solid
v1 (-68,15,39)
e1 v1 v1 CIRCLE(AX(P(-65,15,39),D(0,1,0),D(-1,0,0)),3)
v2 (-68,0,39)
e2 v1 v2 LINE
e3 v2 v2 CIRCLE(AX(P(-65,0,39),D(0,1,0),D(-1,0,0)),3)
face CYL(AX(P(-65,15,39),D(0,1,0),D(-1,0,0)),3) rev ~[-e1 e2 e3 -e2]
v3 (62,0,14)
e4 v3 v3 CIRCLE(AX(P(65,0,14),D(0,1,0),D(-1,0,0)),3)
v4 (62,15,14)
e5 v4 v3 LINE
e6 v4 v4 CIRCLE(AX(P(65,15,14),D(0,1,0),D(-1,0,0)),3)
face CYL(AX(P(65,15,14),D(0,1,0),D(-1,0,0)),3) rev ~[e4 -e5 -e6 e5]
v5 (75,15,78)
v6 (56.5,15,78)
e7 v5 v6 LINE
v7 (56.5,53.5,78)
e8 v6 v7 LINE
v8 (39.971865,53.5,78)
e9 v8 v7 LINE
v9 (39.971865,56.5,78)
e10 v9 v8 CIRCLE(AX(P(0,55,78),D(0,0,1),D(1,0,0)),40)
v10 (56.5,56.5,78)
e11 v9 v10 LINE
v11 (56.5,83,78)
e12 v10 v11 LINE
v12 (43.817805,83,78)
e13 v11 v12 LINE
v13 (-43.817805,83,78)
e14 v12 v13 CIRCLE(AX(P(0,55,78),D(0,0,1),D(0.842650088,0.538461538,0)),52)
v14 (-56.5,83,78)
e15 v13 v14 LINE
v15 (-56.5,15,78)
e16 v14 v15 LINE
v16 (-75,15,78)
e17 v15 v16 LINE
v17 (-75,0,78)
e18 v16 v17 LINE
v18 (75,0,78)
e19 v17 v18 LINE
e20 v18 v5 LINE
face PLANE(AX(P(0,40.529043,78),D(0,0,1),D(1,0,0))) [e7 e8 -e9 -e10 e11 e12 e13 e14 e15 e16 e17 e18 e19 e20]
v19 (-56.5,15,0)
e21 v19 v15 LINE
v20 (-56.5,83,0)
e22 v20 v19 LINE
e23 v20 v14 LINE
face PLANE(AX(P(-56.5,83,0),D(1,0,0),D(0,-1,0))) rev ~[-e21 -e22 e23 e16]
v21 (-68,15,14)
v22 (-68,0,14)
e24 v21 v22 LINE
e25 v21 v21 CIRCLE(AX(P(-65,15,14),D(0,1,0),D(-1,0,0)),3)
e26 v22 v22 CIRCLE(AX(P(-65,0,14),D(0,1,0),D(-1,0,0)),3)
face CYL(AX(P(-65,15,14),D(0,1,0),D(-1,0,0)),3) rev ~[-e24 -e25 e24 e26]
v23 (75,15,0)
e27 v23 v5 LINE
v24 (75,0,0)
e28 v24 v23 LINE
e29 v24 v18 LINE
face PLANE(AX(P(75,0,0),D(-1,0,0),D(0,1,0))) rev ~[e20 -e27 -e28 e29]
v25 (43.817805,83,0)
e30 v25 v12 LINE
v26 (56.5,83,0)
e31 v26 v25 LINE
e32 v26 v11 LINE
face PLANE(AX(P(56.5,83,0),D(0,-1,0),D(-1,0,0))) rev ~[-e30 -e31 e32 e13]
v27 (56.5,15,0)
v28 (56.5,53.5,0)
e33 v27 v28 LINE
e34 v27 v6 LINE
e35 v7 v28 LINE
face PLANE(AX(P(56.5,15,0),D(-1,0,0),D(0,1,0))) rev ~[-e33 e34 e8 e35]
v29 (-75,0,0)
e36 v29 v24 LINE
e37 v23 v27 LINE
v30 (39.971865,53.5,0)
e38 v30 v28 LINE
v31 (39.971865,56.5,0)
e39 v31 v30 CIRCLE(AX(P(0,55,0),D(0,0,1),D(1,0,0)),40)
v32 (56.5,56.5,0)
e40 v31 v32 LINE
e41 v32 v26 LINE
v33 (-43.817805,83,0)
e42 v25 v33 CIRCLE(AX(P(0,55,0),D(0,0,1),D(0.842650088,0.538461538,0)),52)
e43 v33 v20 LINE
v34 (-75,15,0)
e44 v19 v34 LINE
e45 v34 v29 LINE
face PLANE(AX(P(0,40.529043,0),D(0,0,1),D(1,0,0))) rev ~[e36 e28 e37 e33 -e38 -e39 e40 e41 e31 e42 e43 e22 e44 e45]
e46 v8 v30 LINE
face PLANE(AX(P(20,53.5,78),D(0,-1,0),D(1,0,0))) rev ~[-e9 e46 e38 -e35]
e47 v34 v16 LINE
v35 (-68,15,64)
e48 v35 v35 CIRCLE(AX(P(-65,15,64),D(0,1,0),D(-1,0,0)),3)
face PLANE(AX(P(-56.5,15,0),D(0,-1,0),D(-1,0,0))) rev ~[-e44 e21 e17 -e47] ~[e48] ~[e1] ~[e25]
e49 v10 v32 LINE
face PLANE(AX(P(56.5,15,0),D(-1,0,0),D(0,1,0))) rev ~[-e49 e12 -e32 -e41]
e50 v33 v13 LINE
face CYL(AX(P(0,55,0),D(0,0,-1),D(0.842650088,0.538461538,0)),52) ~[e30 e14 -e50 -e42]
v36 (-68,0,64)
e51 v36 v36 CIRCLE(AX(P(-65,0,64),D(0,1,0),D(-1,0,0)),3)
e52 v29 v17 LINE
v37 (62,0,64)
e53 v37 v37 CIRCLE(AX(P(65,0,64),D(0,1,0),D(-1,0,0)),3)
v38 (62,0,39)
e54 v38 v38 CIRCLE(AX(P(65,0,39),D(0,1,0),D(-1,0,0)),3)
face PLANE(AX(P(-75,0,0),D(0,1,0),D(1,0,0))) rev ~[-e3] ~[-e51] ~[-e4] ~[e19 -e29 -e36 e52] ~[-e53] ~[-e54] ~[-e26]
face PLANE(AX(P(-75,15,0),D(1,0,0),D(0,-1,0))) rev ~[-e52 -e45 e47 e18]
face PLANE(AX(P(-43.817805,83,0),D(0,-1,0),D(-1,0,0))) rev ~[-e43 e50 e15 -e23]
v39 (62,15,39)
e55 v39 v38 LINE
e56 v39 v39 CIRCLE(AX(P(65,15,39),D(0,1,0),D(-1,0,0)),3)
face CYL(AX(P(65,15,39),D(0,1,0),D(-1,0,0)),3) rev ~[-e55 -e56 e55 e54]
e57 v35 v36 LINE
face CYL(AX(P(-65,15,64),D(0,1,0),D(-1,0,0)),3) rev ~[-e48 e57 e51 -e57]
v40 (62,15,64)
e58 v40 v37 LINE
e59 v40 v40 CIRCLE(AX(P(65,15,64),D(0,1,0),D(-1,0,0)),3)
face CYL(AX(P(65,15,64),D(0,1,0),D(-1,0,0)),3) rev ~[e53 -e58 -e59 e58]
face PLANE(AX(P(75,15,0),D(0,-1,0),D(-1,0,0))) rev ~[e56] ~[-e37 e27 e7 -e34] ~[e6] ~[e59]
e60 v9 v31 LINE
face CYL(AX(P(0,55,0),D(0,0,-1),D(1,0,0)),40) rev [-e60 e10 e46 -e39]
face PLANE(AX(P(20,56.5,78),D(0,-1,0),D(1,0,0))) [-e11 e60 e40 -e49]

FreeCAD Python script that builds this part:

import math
import FreeCAD as App
import Part
import Sketcher

V = App.Vector
Q = App.Units.Quantity

doc = App.newDocument("Part")
body = doc.addObject("PartDesign::Body", "Body")

# Sketch on XY plane
sketch1 = body.newObject("Sketcher::SketchObject", "Sketch")
sketch1.AttachmentSupport = (doc.getObject("XY_Plane"), [""])
sketch1.MapMode = "FlatFace"
sketch1.addGeometry(Part.LineSegment(V(-75, 0, 0), V(75, 0, 0)), False)
sketch1.addGeometry(Part.LineSegment(V(75, 0, 0), V(75, 15, 0)), False)
sketch1.addGeometry(Part.LineSegment(V(75, 15, 0), V(56, 15, 0)), False)
sketch1.addGeometry(Part.LineSegment(V(56, 15, 0), V(56, 83, 0)), False)
sketch1.addGeometry(Part.LineSegment(V(56, 83, 0), V(44, 83, 0)), False)
sketch1.addGeometry(Part.ArcOfCircle(Part.Circle(V(0, 55, 0), V(0, 0, 1), 52), math.radians(33), math.radians(147)), False)
sketch1.addGeometry(Part.LineSegment(V(-44, 83, 0), V(-56, 83, 0)), False)
sketch1.addGeometry(Part.LineSegment(V(-56, 83, 0), V(-56, 15, 0)), False)
sketch1.addGeometry(Part.LineSegment(V(-56, 15, 0), V(-75, 15, 0)), False)
sketch1.addGeometry(Part.LineSegment(V(-75, 15, 0), V(-75, 0, 0)), False)
sketch1.addGeometry(Part.Circle(V(0, 55, 0), V(0, 0, 1), 40), False)
sketch1.addConstraint(Sketcher.Constraint("Coincident", 0, 2, 1, 1))
sketch1.addConstraint(Sketcher.Constraint("Coincident", 1, 2, 2, 1))
sketch1.addConstraint(Sketcher.Constraint("Coincident", 2, 2, 3, 1))
sketch1.addConstraint(Sketcher.Constraint("Coincident", 3, 2, 4, 1))
sketch1.addConstraint(Sketcher.Constraint("Coincident", 4, 2, 5, 1))
sketch1.addConstraint(Sketcher.Constraint("Coincident", 5, 2, 6, 1))
sketch1.addConstraint(Sketcher.Constraint("Coincident", 6, 2, 7, 1))
sketch1.addConstraint(Sketcher.Constraint("Coincident", 7, 2, 8, 1))
sketch1.addConstraint(Sketcher.Constraint("Coincident", 8, 2, 9, 1))
sketch1.addConstraint(Sketcher.Constraint("Coincident", 9, 2, 0, 1))
sketch1.addConstraint(Sketcher.Constraint("Horizontal", 0))
sketch1.addConstraint(Sketcher.Constraint("Vertical", 1))
sketch1.addConstraint(Sketcher.Constraint("Horizontal", 2))
sketch1.addConstraint(Sketcher.Constraint("Vertical", 3))
sketch1.addConstraint(Sketcher.Constraint("Horizontal", 4))
sketch1.addConstraint(Sketcher.Constraint("Horizontal", 6))
sketch1.addConstraint(Sketcher.Constraint("Vertical", 7))
sketch1.addConstraint(Sketcher.Constraint("Horizontal", 8))
sketch1.addConstraint(Sketcher.Constraint("Vertical", 9))
sketch1.addConstraint(Sketcher.Constraint("Coincident", 10, 3, 5, 3))
sketch1.addConstraint(Sketcher.Constraint("Symmetric", 0, 2, 9, 2, -1, 1))
sketch1.addConstraint(Sketcher.Constraint("Symmetric", 4, 2, 5, 2, -2))
sketch1.addConstraint(Sketcher.Constraint("Symmetric", 2, 2, 7, 2, -2))
sketch1.addConstraint(Sketcher.Constraint("Diameter", 10, Q("80 mm")))
sketch1.addConstraint(Sketcher.Constraint("Radius", 5, Q("52 mm")))
sketch1.addConstraint(Sketcher.Constraint("DistanceX", 0, 1, 0, 2, Q("150 mm")))
sketch1.addConstraint(Sketcher.Constraint("DistanceY", 1, 1, 1, 2, Q("15 mm")))
sketch1.addConstraint(Sketcher.Constraint("DistanceY", 3, 1, 3, 2, Q("68 mm")))
sketch1.addConstraint(Sketcher.Constraint("DistanceX", 2, 2, 2, 1, Q("18.5 mm")))
sketch1.addConstraint(Sketcher.Constraint("DistanceY", -1, 1, 5, 3, Q("55 mm")))
pad1 = body.newObject("PartDesign::Pad", "Pad")
pad1.Profile = sketch1
pad1.Length = 78

# Sketch on XY plane
sketch2 = body.newObject("Sketcher::SketchObject", "Sketch001")
sketch2.AttachmentSupport = (doc.getObject("XY_Plane"), [""])
sketch2.MapMode = "FlatFace"
sketch2.AttachmentOffset = App.Placement(V(0, 0, 78), App.Rotation())
sketch2.addGeometry(Part.LineSegment(V(20, 56.5, 0), V(20, 53.5, 0)), False)
sketch2.addGeometry(Part.LineSegment(V(20, 53.5, 0), V(56.5, 53.5, 0)), False)
sketch2.addGeometry(Part.LineSegment(V(56.5, 53.5, 0), V(56.5, 56.5, 0)), False)
sketch2.addGeometry(Part.LineSegment(V(56.5, 56.5, 0), V(20, 56.5, 0)), False)
sketch2.addConstraint(Sketcher.Constraint("Coincident", 0, 2, 1, 1))
sketch2.addConstraint(Sketcher.Constraint("Coincident", 1, 2, 2, 1))
sketch2.addConstraint(Sketcher.Constraint("Coincident", 2, 2, 3, 1))
sketch2.addConstraint(Sketcher.Constraint("Coincident", 3, 2, 0, 1))
sketch2.addConstraint(Sketcher.Constraint("Vertical", 0))
sketch2.addConstraint(Sketcher.Constraint("Horizontal", 1))
sketch2.addConstraint(Sketcher.Constraint("Vertical", 2))
sketch2.addConstraint(Sketcher.Constraint("Horizontal", 3))
sketch2.addConstraint(Sketcher.Constraint("DistanceY", 0, 2, 0, 1, Q("3 mm")))
sketch2.addConstraint(Sketcher.Constraint("DistanceX", 1, 1, 1, 2, Q("36.5 mm")))
sketch2.addConstraint(Sketcher.Constraint("DistanceX", -1, 1, 0, 2, Q("20 mm")))
sketch2.addConstraint(Sketcher.Constraint("DistanceY", -1, 1, 0, 2, Q("53.5 mm")))
pocket1 = body.newObject("PartDesign::Pocket", "Pocket")
pocket1.Profile = sketch2
pocket1.Length = 78

# Sketch on XZ plane
sketch3 = body.newObject("Sketcher::SketchObject", "Sketch002")
sketch3.AttachmentSupport = (doc.getObject("XZ_Plane"), [""])
sketch3.MapMode = "FlatFace"
sketch3.AttachmentOffset = App.Placement(V(0, 0, -15), App.Rotation())
sketch3.addGeometry(Part.Circle(V(-65, 39, 0), V(0, 0, 1), 3), False)
sketch3.addGeometry(Part.Circle(V(-65, 14, 0), V(0, 0, 1), 3), False)
sketch3.addGeometry(Part.Circle(V(-65, 64, 0), V(0, 0, 1), 3), False)
sketch3.addGeometry(Part.Circle(V(65, 64, 0), V(0, 0, 1), 3), False)
sketch3.addGeometry(Part.Circle(V(65, 14, 0), V(0, 0, 1), 3), False)
sketch3.addGeometry(Part.Circle(V(65, 39, 0), V(0, 0, 1), 3), False)
sketch3.addConstraint(Sketcher.Constraint("Equal", 0, 1))
sketch3.addConstraint(Sketcher.Constraint("Equal", 1, 2))
sketch3.addConstraint(Sketcher.Constraint("Equal", 2, 3))
sketch3.addConstraint(Sketcher.Constraint("Equal", 3, 4))
sketch3.addConstraint(Sketcher.Constraint("Equal", 4, 5))
sketch3.addConstraint(Sketcher.Constraint("Symmetric", 2, 3, 3, 3, -2))
sketch3.addConstraint(Sketcher.Constraint("Symmetric", 1, 3, 4, 3, -2))
sketch3.addConstraint(Sketcher.Constraint("Symmetric", 0, 3, 5, 3, -2))
sketch3.addConstraint(Sketcher.Constraint("Vertical", 0, 3, 1, 3))
sketch3.addConstraint(Sketcher.Constraint("Vertical", 1, 3, 2, 3))
sketch3.addConstraint(Sketcher.Constraint("Diameter", 0, Q("6 mm")))
sketch3.addConstraint(Sketcher.Constraint("DistanceX", 0, 3, -1, 1, Q("65 mm")))
sketch3.addConstraint(Sketcher.Constraint("DistanceY", -1, 1, 0, 3, Q("39 mm")))
sketch3.addConstraint(Sketcher.Constraint("DistanceY", -1, 1, 1, 3, Q("14 mm")))
sketch3.addConstraint(Sketcher.Constraint("DistanceY", -1, 1, 2, 3, Q("64 mm")))
pocket2 = body.newObject("PartDesign::Pocket", "Pocket001")
pocket2.Profile = sketch3
pocket2.Length = 15
pocket2.Reversed = True

doc.recompute()
